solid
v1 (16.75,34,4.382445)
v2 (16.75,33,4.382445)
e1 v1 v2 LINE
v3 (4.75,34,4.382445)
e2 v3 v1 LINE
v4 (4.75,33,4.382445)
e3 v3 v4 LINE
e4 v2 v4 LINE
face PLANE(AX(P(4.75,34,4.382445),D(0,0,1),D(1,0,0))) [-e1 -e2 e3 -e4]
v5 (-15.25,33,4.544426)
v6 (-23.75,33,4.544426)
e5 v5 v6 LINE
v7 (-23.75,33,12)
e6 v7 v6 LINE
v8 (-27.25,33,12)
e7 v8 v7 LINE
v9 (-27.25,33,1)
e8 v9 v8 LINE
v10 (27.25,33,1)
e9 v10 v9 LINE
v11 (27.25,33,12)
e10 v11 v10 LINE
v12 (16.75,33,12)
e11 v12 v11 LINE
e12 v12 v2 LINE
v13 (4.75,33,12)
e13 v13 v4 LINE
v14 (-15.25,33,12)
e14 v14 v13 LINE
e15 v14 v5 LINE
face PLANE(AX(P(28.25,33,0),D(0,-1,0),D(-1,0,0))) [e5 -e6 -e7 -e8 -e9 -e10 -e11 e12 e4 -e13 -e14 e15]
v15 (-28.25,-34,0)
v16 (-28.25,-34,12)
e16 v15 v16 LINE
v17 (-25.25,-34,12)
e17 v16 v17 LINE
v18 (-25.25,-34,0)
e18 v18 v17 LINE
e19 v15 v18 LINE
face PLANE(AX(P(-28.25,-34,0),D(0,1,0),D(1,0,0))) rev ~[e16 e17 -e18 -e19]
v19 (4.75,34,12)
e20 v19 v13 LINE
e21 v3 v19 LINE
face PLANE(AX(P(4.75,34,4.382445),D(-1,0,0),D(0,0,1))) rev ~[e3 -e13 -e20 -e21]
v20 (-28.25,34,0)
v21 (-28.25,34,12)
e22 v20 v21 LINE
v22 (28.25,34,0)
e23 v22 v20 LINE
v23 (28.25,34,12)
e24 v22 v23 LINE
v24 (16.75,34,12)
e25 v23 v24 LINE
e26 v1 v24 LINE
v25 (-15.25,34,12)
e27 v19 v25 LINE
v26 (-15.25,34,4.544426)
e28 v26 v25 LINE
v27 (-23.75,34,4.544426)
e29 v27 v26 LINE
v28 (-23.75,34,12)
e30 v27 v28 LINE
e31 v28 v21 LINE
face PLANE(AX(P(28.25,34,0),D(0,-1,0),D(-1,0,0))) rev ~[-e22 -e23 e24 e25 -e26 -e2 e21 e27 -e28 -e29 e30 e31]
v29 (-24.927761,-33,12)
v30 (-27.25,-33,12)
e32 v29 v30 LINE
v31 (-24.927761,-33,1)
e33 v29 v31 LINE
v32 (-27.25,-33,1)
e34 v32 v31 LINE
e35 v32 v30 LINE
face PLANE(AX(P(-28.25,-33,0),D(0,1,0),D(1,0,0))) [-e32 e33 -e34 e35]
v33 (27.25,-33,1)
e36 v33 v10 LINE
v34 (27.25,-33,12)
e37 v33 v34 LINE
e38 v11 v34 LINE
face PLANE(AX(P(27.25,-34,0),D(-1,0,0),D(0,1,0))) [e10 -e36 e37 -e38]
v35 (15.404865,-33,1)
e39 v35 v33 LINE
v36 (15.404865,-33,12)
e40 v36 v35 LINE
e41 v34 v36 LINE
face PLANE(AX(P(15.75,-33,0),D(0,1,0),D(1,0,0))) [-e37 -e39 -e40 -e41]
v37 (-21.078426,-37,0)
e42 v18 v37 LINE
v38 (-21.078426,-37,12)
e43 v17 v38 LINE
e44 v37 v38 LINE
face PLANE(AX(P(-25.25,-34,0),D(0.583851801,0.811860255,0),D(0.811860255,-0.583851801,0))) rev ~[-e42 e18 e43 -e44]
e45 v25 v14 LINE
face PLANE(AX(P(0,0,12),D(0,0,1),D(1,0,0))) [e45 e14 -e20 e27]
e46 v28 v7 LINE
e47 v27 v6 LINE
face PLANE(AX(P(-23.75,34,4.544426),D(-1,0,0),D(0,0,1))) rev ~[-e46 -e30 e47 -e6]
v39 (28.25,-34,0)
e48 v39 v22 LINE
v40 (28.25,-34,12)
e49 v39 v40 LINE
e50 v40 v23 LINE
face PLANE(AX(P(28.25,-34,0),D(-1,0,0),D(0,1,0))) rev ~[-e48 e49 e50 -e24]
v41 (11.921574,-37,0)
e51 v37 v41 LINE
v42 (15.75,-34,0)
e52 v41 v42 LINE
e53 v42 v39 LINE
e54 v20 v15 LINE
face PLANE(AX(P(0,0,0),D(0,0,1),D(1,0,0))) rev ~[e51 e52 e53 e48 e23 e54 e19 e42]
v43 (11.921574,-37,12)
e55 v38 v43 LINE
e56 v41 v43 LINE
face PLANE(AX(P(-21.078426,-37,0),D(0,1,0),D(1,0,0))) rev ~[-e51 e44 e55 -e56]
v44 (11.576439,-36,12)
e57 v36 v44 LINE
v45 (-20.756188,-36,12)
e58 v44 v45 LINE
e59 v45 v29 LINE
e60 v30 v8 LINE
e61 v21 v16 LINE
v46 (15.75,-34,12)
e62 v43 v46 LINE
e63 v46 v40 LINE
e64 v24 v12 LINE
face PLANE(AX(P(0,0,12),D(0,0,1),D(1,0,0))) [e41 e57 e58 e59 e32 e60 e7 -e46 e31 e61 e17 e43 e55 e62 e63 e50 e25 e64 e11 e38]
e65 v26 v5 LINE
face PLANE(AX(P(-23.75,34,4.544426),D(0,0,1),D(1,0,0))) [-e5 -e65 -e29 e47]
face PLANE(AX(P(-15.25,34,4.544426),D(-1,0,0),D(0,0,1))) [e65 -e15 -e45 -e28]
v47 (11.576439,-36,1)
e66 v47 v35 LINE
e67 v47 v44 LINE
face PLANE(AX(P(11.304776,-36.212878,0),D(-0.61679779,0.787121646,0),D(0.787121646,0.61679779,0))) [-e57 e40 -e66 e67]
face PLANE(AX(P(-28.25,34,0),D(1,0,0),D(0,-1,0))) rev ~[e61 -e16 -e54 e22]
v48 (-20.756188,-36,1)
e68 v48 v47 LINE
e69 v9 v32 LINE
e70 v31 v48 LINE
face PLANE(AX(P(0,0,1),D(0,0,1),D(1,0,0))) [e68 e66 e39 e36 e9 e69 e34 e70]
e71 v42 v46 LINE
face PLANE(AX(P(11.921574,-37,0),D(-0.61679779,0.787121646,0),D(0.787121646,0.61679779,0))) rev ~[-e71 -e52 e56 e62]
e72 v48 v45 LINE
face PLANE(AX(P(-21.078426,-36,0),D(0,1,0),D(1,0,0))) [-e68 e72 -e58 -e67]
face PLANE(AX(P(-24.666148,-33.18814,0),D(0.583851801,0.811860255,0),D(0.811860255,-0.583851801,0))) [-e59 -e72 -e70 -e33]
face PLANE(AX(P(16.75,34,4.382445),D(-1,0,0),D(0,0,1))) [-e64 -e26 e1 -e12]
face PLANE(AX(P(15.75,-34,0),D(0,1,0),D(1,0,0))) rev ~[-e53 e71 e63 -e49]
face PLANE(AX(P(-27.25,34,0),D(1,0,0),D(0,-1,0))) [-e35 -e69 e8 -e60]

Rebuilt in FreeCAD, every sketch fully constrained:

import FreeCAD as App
import Part
import Sketcher

V = App.Vector
Q = App.Units.Quantity


def faces_at(feature, points):
    """Names of the faces that lie closest to the given points."""
    faces = feature.Shape.Faces
    near = lambda p: min(range(len(faces)), key=lambda i: faces[i].distToShape(Part.Vertex(*p))[0])
    return sorted({f"Face{near(p) + 1}" for p in points})


def add_polygon(sketch, points):
    """Adds a closed chain of lines whose ends are joined by coincident constraints."""
    first, n = sketch.GeometryCount, len(points)
    for a, b in zip(points, points[1:] + points[:1]):
        sketch.addGeometry(Part.LineSegment(App.Vector(*a, 0), App.Vector(*b, 0)), False)
    for i in range(n):
        sketch.addConstraint(Sketcher.Constraint("Coincident", first + i, 2, first + (i + 1) % n, 1))

doc = App.newDocument("Part")
body = doc.addObject("PartDesign::Body", "Body")

# Sketch on XY plane
sketch1 = body.newObject("Sketcher::SketchObject", "Sketch")
sketch1.AttachmentSupport = (doc.getObject("XY_Plane"), [""])
sketch1.MapMode = "FlatFace"
add_polygon(sketch1, [(28.2, 34), (-28.2, 34), (-28.2, -34), (-25.2, -34), (-21.1, -37), (11.9, -37), (15.8, -34), (28.2, -34)])  # lines 0-7
sketch1.addConstraint([
    Sketcher.Constraint("Horizontal", 0),
    Sketcher.Constraint("Vertical", 1),
    Sketcher.Constraint("Horizontal", 2),
    Sketcher.Constraint("Horizontal", 4),
    Sketcher.Constraint("Horizontal", 6),
    Sketcher.Constraint("Vertical", 7),
    Sketcher.Constraint("Symmetric", 0, 2, 6, 2, -1, 1),
    Sketcher.Constraint("Horizontal", 2, 2, 5, 2),
    Sketcher.Constraint("DistanceX", 2, 1, 2, 2, Q("3 mm")),
    Sketcher.Constraint("DistanceX", 4, 1, 4, 2, Q("33 mm")),
    Sketcher.Constraint("DistanceY", 1, 2, 1, 1, Q("68 mm")),
    Sketcher.Constraint("DistanceX", 0, 2, 0, 1, Q("56.5 mm")),
    Sketcher.Constraint("DistanceX", 6, 1, 6, 2, Q("12.5 mm")),
    Sketcher.Constraint("DistanceY", 3, 2, -1, 1, Q("37 mm")),
    Sketcher.Constraint("Distance", 3, Q("5.13829 mm")),
])
pad1 = body.newObject("PartDesign::Pad", "Pad")
pad1.Profile = sketch1
pad1.Length = 12
doc.recompute()

thickness = body.newObject("PartDesign::Thickness", "Thickness")
thickness.Base = (pad1, faces_at(pad1, [(0, -1.5, 12)]))
thickness.Value = 1
thickness.Reversed = True
thickness.Join = "Intersection"

# Sketch on XZ plane
sketch2 = body.newObject("Sketcher::SketchObject", "Sketch001")
sketch2.AttachmentSupport = (doc.getObject("XZ_Plane"), [""])
sketch2.MapMode = "FlatFace"
sketch2.AttachmentOffset = App.Placement(V(0, 0, -34), App.Rotation())
add_polygon(sketch2, [(5, 15), (5, 4), (17, 4), (17, 15)])  # lines 0-3
add_polygon(sketch2, [(-24, 16), (-24, 5), (-15, 5), (-15, 16)])  # lines 4-7
sketch2.addConstraint([
    Sketcher.Constraint("Vertical", 0),
    Sketcher.Constraint("Horizontal", 1),
    Sketcher.Constraint("Vertical", 2),
    Sketcher.Constraint("Horizontal", 3),
    Sketcher.Constraint("Vertical", 4),
    Sketcher.Constraint("Horizontal", 5),
    Sketcher.Constraint("Vertical", 6),
    Sketcher.Constraint("Horizontal", 7),
    Sketcher.Constraint("Equal", 2, 4),
    Sketcher.Constraint("DistanceX", 1, 1, 1, 2, Q("12 mm")),
    Sketcher.Constraint("DistanceY", 0, 2, 0, 1, Q("11 mm")),
    Sketcher.Constraint("DistanceX", 5, 1, 5, 2, Q("8.5 mm")),
    Sketcher.Constraint("DistanceX", 5, 2, 0, 2, Q("20 mm")),
    Sketcher.Constraint("DistanceX", -1, 1, 0, 2, Q("4.75 mm")),
    Sketcher.Constraint("DistanceY", 0, 2, 4, 2, Q("0.161981 mm")),
    Sketcher.Constraint("DistanceY", -1, 1, 0, 2, Q("4.382445 mm")),
])
pocket1 = body.newObject("PartDesign::Pocket", "Pocket")
pocket1.Profile = sketch2
pocket1.Length = 5
pocket1.Reversed = True

doc.recompute()
